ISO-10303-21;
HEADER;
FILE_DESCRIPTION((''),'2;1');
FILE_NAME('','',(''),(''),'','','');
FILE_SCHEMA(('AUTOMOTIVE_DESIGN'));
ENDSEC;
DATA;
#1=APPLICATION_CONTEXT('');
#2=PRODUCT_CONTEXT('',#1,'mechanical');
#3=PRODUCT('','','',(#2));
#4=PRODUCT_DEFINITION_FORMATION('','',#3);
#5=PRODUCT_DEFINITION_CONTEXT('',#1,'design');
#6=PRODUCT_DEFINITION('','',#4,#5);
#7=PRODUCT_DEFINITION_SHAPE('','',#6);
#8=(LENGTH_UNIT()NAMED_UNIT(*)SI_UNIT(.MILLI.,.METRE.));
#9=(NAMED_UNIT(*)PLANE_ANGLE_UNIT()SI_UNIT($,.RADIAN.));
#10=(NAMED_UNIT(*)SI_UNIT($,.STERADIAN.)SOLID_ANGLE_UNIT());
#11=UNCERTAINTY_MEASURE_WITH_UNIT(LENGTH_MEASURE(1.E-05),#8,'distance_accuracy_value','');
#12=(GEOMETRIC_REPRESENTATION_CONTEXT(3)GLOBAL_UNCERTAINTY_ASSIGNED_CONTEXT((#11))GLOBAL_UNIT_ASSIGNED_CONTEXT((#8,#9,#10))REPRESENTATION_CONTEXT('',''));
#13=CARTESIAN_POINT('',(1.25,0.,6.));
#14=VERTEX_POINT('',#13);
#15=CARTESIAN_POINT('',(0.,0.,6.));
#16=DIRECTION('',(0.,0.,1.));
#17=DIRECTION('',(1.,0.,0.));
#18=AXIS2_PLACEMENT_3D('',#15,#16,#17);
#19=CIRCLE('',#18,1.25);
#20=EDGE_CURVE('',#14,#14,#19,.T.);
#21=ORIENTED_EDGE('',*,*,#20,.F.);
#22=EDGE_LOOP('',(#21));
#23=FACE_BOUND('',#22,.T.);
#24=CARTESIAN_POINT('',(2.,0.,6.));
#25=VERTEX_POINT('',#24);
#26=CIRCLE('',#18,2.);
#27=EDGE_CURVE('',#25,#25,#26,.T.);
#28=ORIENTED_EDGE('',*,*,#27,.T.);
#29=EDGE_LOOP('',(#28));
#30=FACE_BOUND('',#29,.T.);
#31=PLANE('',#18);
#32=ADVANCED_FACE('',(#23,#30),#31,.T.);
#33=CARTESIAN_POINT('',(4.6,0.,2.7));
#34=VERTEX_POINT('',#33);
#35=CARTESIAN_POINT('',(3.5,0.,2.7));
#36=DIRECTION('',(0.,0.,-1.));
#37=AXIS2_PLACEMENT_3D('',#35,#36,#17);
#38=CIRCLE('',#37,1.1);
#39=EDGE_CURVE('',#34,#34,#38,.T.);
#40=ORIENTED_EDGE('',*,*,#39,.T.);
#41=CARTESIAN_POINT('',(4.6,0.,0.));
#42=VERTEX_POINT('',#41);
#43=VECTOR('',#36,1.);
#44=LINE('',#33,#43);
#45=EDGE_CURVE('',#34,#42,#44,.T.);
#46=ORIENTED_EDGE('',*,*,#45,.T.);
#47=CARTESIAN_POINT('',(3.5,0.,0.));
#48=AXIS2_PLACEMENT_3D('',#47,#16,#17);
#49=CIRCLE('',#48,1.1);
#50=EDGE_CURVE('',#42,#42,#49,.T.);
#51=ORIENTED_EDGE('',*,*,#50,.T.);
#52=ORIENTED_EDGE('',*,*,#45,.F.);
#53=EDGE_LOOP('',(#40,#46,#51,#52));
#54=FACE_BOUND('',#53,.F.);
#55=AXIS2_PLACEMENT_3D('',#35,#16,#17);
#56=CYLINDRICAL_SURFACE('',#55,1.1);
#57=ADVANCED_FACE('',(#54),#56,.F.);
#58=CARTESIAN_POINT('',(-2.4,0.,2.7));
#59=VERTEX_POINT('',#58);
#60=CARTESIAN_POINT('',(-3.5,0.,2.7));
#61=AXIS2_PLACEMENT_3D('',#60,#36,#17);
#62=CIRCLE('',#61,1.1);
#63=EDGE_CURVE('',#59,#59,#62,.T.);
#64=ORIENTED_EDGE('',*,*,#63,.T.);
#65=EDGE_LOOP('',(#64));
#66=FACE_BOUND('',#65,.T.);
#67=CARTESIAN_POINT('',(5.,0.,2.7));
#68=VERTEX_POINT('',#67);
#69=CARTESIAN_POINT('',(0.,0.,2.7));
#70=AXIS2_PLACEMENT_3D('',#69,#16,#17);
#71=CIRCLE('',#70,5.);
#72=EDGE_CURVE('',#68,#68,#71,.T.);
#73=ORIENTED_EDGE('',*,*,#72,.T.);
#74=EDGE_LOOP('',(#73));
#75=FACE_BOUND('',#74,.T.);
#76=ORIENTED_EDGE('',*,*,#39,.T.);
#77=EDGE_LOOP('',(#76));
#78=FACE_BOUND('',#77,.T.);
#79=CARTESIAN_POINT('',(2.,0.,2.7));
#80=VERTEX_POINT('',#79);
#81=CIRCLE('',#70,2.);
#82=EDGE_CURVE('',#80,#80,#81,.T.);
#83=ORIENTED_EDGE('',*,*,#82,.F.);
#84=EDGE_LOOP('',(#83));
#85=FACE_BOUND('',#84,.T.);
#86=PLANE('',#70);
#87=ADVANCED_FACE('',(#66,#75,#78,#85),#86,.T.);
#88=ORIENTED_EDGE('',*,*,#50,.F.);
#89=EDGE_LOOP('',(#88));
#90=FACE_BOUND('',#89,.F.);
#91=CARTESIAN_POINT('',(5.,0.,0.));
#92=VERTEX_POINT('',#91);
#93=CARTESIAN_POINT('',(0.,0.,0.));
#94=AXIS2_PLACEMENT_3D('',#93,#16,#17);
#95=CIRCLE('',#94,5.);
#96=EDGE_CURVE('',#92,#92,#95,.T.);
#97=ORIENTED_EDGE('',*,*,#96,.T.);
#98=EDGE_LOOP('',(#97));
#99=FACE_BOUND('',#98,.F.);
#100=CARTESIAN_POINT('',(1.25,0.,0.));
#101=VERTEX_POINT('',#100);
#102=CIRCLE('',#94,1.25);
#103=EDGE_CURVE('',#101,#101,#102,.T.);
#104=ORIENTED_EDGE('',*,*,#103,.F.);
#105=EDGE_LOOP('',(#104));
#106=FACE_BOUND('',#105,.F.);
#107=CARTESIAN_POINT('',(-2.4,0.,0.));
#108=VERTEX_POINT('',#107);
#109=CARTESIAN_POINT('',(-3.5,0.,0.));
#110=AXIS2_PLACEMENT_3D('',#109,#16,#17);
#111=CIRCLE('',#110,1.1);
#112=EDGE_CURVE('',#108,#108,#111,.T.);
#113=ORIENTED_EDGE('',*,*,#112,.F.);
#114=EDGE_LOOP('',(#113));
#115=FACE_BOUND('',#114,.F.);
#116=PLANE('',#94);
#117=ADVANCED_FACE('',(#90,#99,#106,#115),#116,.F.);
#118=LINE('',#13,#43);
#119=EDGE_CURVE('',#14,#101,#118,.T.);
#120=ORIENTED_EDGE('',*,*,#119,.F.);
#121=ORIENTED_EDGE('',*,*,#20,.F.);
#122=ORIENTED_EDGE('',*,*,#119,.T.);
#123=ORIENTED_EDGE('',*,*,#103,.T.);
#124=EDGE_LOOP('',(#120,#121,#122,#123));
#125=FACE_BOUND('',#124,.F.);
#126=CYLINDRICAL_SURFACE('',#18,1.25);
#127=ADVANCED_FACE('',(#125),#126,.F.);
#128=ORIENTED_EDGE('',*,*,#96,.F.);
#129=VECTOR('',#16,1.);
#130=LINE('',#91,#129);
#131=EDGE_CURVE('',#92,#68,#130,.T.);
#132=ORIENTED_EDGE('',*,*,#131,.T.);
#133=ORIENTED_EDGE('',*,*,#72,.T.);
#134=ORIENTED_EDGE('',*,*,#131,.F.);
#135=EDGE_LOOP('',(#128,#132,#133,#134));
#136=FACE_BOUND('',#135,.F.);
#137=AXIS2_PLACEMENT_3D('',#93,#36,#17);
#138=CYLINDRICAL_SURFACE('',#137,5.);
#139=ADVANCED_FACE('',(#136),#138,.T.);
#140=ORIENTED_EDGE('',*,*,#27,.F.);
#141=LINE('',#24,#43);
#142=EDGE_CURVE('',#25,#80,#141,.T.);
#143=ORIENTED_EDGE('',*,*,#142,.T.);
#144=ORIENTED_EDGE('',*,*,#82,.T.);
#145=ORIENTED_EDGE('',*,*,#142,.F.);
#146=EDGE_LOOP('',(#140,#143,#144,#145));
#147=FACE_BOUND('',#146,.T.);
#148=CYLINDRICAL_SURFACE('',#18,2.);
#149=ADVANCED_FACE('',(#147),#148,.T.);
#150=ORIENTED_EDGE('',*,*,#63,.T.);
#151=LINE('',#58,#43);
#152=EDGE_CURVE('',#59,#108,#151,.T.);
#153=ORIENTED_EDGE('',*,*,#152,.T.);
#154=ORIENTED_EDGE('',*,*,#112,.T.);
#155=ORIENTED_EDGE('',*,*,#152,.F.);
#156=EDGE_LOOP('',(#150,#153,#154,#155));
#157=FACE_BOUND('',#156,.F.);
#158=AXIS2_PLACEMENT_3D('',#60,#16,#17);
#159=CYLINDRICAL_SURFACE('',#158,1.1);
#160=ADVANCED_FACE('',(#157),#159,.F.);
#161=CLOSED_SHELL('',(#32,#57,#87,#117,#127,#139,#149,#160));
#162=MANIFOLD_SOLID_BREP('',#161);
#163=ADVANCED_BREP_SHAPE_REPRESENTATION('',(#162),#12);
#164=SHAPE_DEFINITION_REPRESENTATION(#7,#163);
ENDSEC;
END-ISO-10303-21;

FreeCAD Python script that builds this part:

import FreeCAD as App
import Part
import Sketcher

doc = App.newDocument("Part")
body = doc.addObject("PartDesign::Body", "Body")

sketch1 = body.newObject("Sketcher::SketchObject", "Sketch")
sketch1.AttachmentSupport = (doc.getObject("XY_Plane"), [""])
sketch1.MapMode = "FlatFace"
sketch1.addGeometry(Part.Circle(App.Vector(0, 0, 0), App.Vector(0, 0, 1), 5), False)
sketch1.addConstraint(Sketcher.Constraint("Coincident", 0, 3, -1, 1))
sketch1.addConstraint(Sketcher.Constraint("Diameter", 0, 10.0))
pad1 = body.newObject("PartDesign::Pad", "Pad")
pad1.Profile = sketch1
pad1.Length = 6

sketch2 = body.newObject("Sketcher::SketchObject", "Sketch001")
sketch2.AttachmentSupport = (doc.getObject("XY_Plane"), [""])
sketch2.MapMode = "FlatFace"
sketch2.AttachmentOffset = App.Placement(App.Vector(0, 0, 6), App.Rotation())
sketch2.addGeometry(Part.Circle(App.Vector(0, 0, 0), App.Vector(0, 0, 1), 5), False)
sketch2.addGeometry(Part.Circle(App.Vector(0, 0, 0), App.Vector(0, 0, 1), 2), False)
sketch2.addConstraint(Sketcher.Constraint("Coincident", 0, 3, -1, 1))
sketch2.addConstraint(Sketcher.Constraint("Coincident", 1, 3, -1, 1))
sketch2.addConstraint(Sketcher.Constraint("Diameter", 1, 4.0))
sketch2.addConstraint(Sketcher.Constraint("Diameter", 0, 10.0))
pocket1 = body.newObject("PartDesign::Pocket", "Pocket")
pocket1.Profile = sketch2
pocket1.Length = 3.3

sketch3 = body.newObject("Sketcher::SketchObject", "Sketch002")
sketch3.AttachmentSupport = (doc.getObject("XY_Plane"), [""])
sketch3.MapMode = "FlatFace"
sketch3.AttachmentOffset = App.Placement(App.Vector(0, 0, 6), App.Rotation())
sketch3.addGeometry(Part.Circle(App.Vector(0, 0, 0), App.Vector(0, 0, 1), 1.2), False)
sketch3.addConstraint(Sketcher.Constraint("Coincident", 0, 3, -1, 1))
sketch3.addConstraint(Sketcher.Constraint("Diameter", 0, 2.5))
pocket2 = body.newObject("PartDesign::Pocket", "Pocket001")
pocket2.Profile = sketch3
pocket2.Length = 6

sketch4 = body.newObject("Sketcher::SketchObject", "Sketch003")
sketch4.AttachmentSupport = (doc.getObject("XY_Plane"), [""])
sketch4.MapMode = "FlatFace"
sketch4.AttachmentOffset = App.Placement(App.Vector(0, 0, 2.7), App.Rotation())
sketch4.addGeometry(Part.Circle(App.Vector(3.5, 0, 0), App.Vector(0, 0, 1), 1.1), False)
sketch4.addGeometry(Part.Circle(App.Vector(-3.5, 0, 0), App.Vector(0, 0, 1), 1.1), False)
sketch4.addConstraint(Sketcher.Constraint("Equal", 0, 1))
sketch4.addConstraint(Sketcher.Constraint("Symmetric", 0, 3, 1, 3, -1, 1))
sketch4.addConstraint(Sketcher.Constraint("PointOnObject", 0, 3, -1))
sketch4.addConstraint(Sketcher.Constraint("Diameter", 0, 2.2))
sketch4.addConstraint(Sketcher.Constraint("DistanceX", 1, 3, 0, 3, 7.0))
pocket3 = body.newObject("PartDesign::Pocket", "Pocket002")
pocket3.Profile = sketch4
pocket3.Length = 6

doc.recompute()
